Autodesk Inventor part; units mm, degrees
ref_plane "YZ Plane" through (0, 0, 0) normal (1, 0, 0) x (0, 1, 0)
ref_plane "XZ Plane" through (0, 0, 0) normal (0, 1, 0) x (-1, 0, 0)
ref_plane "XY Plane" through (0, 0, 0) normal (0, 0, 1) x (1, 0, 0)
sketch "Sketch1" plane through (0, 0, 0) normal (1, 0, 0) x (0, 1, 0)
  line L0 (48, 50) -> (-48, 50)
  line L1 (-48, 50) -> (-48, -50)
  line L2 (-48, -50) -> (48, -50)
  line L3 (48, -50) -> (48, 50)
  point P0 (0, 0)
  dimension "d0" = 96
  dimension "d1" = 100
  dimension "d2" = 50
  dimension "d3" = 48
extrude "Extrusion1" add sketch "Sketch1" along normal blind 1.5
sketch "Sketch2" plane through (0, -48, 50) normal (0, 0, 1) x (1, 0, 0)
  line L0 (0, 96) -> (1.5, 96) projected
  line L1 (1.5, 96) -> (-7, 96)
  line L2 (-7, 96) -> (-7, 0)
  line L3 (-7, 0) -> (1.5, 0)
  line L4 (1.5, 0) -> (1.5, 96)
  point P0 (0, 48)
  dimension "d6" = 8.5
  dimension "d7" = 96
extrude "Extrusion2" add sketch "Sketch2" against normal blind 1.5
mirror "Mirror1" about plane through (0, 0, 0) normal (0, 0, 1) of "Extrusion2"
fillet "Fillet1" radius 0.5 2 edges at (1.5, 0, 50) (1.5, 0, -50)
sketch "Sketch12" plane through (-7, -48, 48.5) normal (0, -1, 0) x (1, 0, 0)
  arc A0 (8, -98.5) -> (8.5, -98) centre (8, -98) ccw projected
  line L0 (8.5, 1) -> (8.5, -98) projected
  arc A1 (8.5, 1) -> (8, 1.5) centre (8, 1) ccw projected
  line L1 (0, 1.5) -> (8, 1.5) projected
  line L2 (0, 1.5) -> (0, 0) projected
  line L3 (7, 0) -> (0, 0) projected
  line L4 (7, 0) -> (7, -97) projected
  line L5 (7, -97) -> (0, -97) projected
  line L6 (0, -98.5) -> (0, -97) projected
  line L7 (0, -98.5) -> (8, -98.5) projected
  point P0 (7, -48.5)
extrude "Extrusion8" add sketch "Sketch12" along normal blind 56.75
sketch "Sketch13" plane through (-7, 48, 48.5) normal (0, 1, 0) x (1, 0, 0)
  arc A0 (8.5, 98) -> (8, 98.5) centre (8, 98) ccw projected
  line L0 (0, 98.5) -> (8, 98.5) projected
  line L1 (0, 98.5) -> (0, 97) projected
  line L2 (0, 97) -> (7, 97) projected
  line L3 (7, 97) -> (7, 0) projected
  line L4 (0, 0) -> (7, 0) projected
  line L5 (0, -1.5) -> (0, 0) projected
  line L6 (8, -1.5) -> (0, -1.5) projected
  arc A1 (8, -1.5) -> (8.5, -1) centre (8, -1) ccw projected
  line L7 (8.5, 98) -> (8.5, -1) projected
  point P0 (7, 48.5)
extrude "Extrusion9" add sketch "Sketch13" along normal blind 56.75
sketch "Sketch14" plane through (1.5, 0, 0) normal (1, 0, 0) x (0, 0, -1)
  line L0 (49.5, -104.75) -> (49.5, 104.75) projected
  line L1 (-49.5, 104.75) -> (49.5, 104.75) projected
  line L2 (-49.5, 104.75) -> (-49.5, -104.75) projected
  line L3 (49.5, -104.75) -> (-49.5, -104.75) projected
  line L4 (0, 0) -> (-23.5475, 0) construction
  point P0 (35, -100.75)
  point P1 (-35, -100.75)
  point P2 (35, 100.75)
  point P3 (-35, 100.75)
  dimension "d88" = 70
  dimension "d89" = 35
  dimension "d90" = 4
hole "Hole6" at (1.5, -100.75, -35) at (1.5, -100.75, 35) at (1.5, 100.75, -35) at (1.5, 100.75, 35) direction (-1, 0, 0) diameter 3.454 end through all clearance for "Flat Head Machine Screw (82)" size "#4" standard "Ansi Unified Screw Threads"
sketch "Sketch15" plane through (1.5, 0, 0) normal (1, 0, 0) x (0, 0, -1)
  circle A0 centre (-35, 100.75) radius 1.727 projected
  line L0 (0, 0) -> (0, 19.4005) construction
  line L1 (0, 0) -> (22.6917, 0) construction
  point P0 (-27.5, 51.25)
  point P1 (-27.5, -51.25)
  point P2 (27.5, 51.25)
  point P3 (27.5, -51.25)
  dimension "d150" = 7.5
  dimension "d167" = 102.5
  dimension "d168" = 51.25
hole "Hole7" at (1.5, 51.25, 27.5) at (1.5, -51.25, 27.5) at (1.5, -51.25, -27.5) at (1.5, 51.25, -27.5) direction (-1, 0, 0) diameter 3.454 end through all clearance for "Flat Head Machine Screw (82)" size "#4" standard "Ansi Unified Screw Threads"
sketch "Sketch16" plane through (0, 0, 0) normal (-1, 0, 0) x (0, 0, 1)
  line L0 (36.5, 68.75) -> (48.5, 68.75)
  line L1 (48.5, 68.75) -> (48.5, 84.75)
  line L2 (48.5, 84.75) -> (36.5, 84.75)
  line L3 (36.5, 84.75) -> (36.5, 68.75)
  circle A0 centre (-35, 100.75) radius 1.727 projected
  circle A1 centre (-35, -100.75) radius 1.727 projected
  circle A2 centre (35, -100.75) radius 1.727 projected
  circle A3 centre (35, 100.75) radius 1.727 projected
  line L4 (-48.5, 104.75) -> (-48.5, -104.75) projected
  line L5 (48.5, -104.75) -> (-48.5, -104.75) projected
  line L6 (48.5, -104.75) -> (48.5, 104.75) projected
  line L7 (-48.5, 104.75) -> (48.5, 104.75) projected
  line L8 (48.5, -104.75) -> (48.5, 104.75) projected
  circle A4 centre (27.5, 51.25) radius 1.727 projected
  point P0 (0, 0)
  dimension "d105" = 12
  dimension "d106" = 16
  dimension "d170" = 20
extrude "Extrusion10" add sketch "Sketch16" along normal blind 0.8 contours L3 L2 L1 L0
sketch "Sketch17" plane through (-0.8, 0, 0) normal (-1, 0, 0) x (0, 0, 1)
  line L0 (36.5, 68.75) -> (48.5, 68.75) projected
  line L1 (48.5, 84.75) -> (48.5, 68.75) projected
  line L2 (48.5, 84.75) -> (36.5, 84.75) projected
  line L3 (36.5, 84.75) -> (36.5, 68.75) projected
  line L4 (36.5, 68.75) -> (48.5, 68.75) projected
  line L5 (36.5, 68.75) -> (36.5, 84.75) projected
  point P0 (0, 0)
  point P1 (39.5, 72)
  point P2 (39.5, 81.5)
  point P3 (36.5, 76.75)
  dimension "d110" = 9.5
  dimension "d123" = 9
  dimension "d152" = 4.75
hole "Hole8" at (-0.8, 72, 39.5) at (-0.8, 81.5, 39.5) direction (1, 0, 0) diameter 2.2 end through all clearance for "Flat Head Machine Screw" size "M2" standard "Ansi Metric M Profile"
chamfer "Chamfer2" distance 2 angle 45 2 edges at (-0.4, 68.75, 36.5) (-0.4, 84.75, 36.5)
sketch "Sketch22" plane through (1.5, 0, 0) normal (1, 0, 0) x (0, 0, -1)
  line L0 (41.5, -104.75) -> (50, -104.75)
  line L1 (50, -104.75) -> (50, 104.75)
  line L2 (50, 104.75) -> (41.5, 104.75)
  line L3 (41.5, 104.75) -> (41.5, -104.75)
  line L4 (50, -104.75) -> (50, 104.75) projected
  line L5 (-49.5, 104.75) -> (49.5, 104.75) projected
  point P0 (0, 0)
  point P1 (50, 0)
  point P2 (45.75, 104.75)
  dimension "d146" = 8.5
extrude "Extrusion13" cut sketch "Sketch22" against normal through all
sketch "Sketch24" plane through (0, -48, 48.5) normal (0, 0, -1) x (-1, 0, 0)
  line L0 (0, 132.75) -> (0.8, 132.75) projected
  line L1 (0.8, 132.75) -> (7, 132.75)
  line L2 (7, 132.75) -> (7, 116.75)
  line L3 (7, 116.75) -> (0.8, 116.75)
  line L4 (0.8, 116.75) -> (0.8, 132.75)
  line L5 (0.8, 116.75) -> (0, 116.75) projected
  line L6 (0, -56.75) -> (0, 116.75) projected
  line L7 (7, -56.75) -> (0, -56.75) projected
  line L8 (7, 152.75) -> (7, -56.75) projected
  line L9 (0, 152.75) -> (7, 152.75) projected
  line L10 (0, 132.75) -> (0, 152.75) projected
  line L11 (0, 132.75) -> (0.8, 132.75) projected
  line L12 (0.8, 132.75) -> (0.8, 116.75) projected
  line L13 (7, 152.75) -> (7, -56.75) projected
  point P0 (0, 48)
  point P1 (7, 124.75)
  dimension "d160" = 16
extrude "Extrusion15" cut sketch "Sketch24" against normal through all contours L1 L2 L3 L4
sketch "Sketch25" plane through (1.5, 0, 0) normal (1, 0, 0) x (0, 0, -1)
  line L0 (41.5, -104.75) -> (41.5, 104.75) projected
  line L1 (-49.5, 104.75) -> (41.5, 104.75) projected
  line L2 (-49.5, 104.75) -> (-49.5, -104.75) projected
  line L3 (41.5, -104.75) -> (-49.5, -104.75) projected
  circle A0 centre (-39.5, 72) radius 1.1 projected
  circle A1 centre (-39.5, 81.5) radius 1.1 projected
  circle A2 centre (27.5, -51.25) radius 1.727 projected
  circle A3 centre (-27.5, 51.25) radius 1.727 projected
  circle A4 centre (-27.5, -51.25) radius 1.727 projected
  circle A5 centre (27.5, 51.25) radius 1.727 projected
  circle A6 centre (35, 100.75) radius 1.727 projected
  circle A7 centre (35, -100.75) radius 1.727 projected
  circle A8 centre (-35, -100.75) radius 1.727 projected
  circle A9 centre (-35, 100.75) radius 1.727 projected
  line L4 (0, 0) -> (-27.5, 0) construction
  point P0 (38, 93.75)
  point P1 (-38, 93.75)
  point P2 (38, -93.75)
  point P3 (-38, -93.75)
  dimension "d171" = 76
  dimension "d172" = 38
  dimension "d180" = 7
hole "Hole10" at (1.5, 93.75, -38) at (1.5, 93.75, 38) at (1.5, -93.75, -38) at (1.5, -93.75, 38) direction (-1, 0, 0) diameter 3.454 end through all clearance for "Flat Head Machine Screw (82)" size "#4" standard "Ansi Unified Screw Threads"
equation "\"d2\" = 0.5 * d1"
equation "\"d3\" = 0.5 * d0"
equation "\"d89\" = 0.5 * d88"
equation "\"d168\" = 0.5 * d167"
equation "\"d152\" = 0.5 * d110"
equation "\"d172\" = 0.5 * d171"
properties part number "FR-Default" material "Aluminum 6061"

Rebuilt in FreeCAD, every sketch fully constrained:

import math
import FreeCAD as App
import Part
import Sketcher
from FreeCAD import Vector
Q = App.Units.Quantity


def edges_at(feature, points):
    """Names of the edges that pass closest to the given points."""
    edges = feature.Shape.Edges
    near = lambda p: min(range(len(edges)), key=lambda i: edges[i].distToShape(Part.Vertex(*p))[0])
    return sorted({f"Edge{near(p) + 1}" for p in points})

doc = App.newDocument("Part")
body = doc.addObject("PartDesign::Body", "Body")

# Sketch on YZ plane
sketch1 = body.newObject("Sketcher::SketchObject", "Sketch")
sketch1.AttachmentSupport = (doc.getObject("YZ_Plane"), [""])
sketch1.MapMode = "FlatFace"
sketch1.addGeometry([
    Part.LineSegment(Vector(48, -50, 0), Vector(48, 50, 0)),
    Part.LineSegment(Vector(48, 50, 0), Vector(-48, 50, 0)),
    Part.LineSegment(Vector(-48, 50, 0), Vector(-48, -50, 0)),
    Part.LineSegment(Vector(-48, -50, 0), Vector(48, -50, 0)),
], False)
sketch1.addConstraint([
    Sketcher.Constraint("Coincident", 0, 2, 1, 1),
    Sketcher.Constraint("Coincident", 1, 2, 2, 1),
    Sketcher.Constraint("Coincident", 2, 2, 3, 1),
    Sketcher.Constraint("Coincident", 3, 2, 0, 1),
    Sketcher.Constraint("Vertical", 0),
    Sketcher.Constraint("Horizontal", 1),
    Sketcher.Constraint("Vertical", 2),
    Sketcher.Constraint("Horizontal", 3),
    Sketcher.Constraint("Symmetric", 0, 2, 2, 2, -1, 1),
    Sketcher.Constraint("DistanceX", 1, 2, 1, 1, Q("96 mm")),
    Sketcher.Constraint("DistanceY", 0, 1, 0, 2, Q("100 mm")),
])
pad1 = body.newObject("PartDesign::Pad", "Pad")
pad1.Profile = sketch1
pad1.Length = 1.5

# Sketch on XY plane
sketch2 = body.newObject("Sketcher::SketchObject", "Sketch001")
sketch2.AttachmentSupport = (doc.getObject("XY_Plane"), [""])
sketch2.MapMode = "FlatFace"
sketch2.AttachmentOffset = App.Placement(Vector(0, 0, 50), App.Rotation())
sketch2.addGeometry([
    Part.LineSegment(Vector(1.5, 48, 0), Vector(-7, 48, 0)),
    Part.LineSegment(Vector(-7, 48, 0), Vector(-7, -48, 0)),
    Part.LineSegment(Vector(-7, -48, 0), Vector(1.5, -48, 0)),
    Part.LineSegment(Vector(1.5, -48, 0), Vector(1.5, 48, 0)),
], False)
sketch2.addConstraint([
    Sketcher.Constraint("Coincident", 0, 2, 1, 1),
    Sketcher.Constraint("Coincident", 1, 2, 2, 1),
    Sketcher.Constraint("Coincident", 2, 2, 3, 1),
    Sketcher.Constraint("Coincident", 3, 2, 0, 1),
    Sketcher.Constraint("Horizontal", 0),
    Sketcher.Constraint("Vertical", 1),
    Sketcher.Constraint("Horizontal", 2),
    Sketcher.Constraint("Vertical", 3),
    Sketcher.Constraint("DistanceY", 1, 2, 1, 1, Q("96 mm")),
    Sketcher.Constraint("DistanceX", 0, 2, 0, 1, Q("8.5 mm")),
    Sketcher.Constraint("DistanceX", 0, 2, -1, 1, Q("7 mm")),
    Sketcher.Constraint("DistanceY", -1, 1, 0, 2, Q("48 mm")),
])
pad2 = body.newObject("PartDesign::Pad", "Pad001")
pad2.Profile = sketch2
pad2.Length = 1.5
pad2.Reversed = True
doc.recompute()

mirrored = body.newObject("PartDesign::Mirrored", "Mirrored")
mirrored.Originals = [pad2]
mirrored.MirrorPlane = (doc.getObject("XY_Plane"), [""])
body.Tip = mirrored
doc.recompute()

fillet = body.newObject("PartDesign::Fillet", "Fillet")
fillet.Base = (mirrored, edges_at(mirrored, [(1.5, 0, 50), (1.5, 0, -50)]))
fillet.Radius = 0.5

# Sketch on XZ plane
sketch3 = body.newObject("Sketcher::SketchObject", "Sketch002")
sketch3.AttachmentSupport = (doc.getObject("XZ_Plane"), [""])
sketch3.MapMode = "FlatFace"
sketch3.AttachmentOffset = App.Placement(Vector(0, 0, 48), App.Rotation())
sketch3.addGeometry([
    Part.LineSegment(Vector(-7, -50, 0), Vector(1, -50, 0)),  # 0
    Part.ArcOfCircle(Part.Circle(Vector(1, -49.5, 0), Vector(0, 0, 1), 0.5), math.radians(-90), math.radians(0)),  # 1
    Part.LineSegment(Vector(1.5, -49.5, 0), Vector(1.5, 49.5, 0)),  # 2
    Part.ArcOfCircle(Part.Circle(Vector(1, 49.5, 0), Vector(0, 0, 1), 0.5), math.radians(0), math.radians(90)),  # 3
    Part.LineSegment(Vector(1, 50, 0), Vector(-7, 50, 0)),  # 4
    Part.LineSegment(Vector(-7, 50, 0), Vector(-7, 48.5, 0)),  # 5
    Part.LineSegment(Vector(-7, 48.5, 0), Vector(0, 48.5, 0)),  # 6
    Part.LineSegment(Vector(0, 48.5, 0), Vector(0, -48.5, 0)),  # 7
    Part.LineSegment(Vector(0, -48.5, 0), Vector(-7, -48.5, 0)),  # 8
    Part.LineSegment(Vector(-7, -48.5, 0), Vector(-7, -50, 0)),  # 9
], False)
sketch3.addConstraint([
    Sketcher.Constraint("Tangent", 0, 2, 1, 1),
    Sketcher.Constraint("Tangent", 1, 2, 2, 1),
    Sketcher.Constraint("Tangent", 2, 2, 3, 1),
    Sketcher.Constraint("Tangent", 3, 2, 4, 1),
    Sketcher.Constraint("Coincident", 4, 2, 5, 1),
    Sketcher.Constraint("Coincident", 5, 2, 6, 1),
    Sketcher.Constraint("Coincident", 6, 2, 7, 1),
    Sketcher.Constraint("Coincident", 7, 2, 8, 1),
    Sketcher.Constraint("Coincident", 8, 2, 9, 1),
    Sketcher.Constraint("Coincident", 9, 2, 0, 1),
    Sketcher.Constraint("Horizontal", 0),
    Sketcher.Constraint("Vertical", 2),
    Sketcher.Constraint("Horizontal", 4),
    Sketcher.Constraint("Vertical", 5),
    Sketcher.Constraint("Horizontal", 6),
    Sketcher.Constraint("Vertical", 7),
    Sketcher.Constraint("Horizontal", 8),
    Sketcher.Constraint("Vertical", 9),
    Sketcher.Constraint("Equal", 1, 3),
    Sketcher.Constraint("Symmetric", 6, 2, 7, 2, -1, 1),
    Sketcher.Constraint("Symmetric", 4, 2, 9, 2, -1),
    Sketcher.Constraint("Radius", 1, Q("0.5 mm")),
    Sketcher.Constraint("DistanceX", 0, 1, 0, 2, Q("8 mm")),
    Sketcher.Constraint("DistanceX", 6, 1, 6, 2, Q("7 mm")),
    Sketcher.Constraint("DistanceY", 2, 1, 2, 2, Q("99 mm")),
    Sketcher.Constraint("DistanceY", 7, 2, 7, 1, Q("97 mm")),
])
pad3 = body.newObject("PartDesign::Pad", "Pad002")
pad3.Profile = sketch3
pad3.Length = 56.75

# Sketch on XZ plane
sketch4 = body.newObject("Sketcher::SketchObject", "Sketch003")
sketch4.AttachmentSupport = (doc.getObject("XZ_Plane"), [""])
sketch4.MapMode = "FlatFace"
sketch4.AttachmentOffset = App.Placement(Vector(0, 0, -48), App.Rotation())
sketch4.addGeometry([
    Part.LineSegment(Vector(1.5, 49.5, 0), Vector(1.5, -49.5, 0)),  # 0
    Part.ArcOfCircle(Part.Circle(Vector(1, -49.5, 0), Vector(0, 0, 1), 0.5), math.radians(-90), math.radians(0)),  # 1
    Part.LineSegment(Vector(1, -50, 0), Vector(-7, -50, 0)),  # 2
    Part.LineSegment(Vector(-7, -50, 0), Vector(-7, -48.5, 0)),  # 3
    Part.LineSegment(Vector(-7, -48.5, 0), Vector(0, -48.5, 0)),  # 4
    Part.LineSegment(Vector(0, -48.5, 0), Vector(0, 48.5, 0)),  # 5
    Part.LineSegment(Vector(0, 48.5, 0), Vector(-7, 48.5, 0)),  # 6
    Part.LineSegment(Vector(-7, 48.5, 0), Vector(-7, 50, 0)),  # 7
    Part.LineSegment(Vector(-7, 50, 0), Vector(1, 50, 0)),  # 8
    Part.ArcOfCircle(Part.Circle(Vector(1, 49.5, 0), Vector(0, 0, 1), 0.5), math.radians(0), math.radians(90)),  # 9
], False)
sketch4.addConstraint([
    Sketcher.Constraint("Tangent", 0, 2, 1, 2),
    Sketcher.Constraint("Tangent", 1, 1, 2, 1),
    Sketcher.Constraint("Coincident", 2, 2, 3, 1),
    Sketcher.Constraint("Coincident", 3, 2, 4, 1),
    Sketcher.Constraint("Coincident", 4, 2, 5, 1),
    Sketcher.Constraint("Coincident", 5, 2, 6, 1),
    Sketcher.Constraint("Coincident", 6, 2, 7, 1),
    Sketcher.Constraint("Coincident", 7, 2, 8, 1),
    Sketcher.Constraint("Tangent", 8, 2, 9, 2),
    Sketcher.Constraint("Tangent", 9, 1, 0, 1),
    Sketcher.Constraint("Vertical", 0),
    Sketcher.Constraint("Horizontal", 2),
    Sketcher.Constraint("Vertical", 3),
    Sketcher.Constraint("Horizontal", 4),
    Sketcher.Constraint("Vertical", 5),
    Sketcher.Constraint("Horizontal", 6),
    Sketcher.Constraint("Vertical", 7),
    Sketcher.Constraint("Horizontal", 8),
    Sketcher.Constraint("Equal", 1, 9),
    Sketcher.Constraint("Symmetric", 4, 2, 5, 2, -1, 1),
    Sketcher.Constraint("Symmetric", 2, 2, 7, 2, -1),
    Sketcher.Constraint("Radius", 1, Q("0.5 mm")),
    Sketcher.Constraint("DistanceX", 2, 2, 2, 1, Q("8 mm")),
    Sketcher.Constraint("DistanceX", 4, 1, 4, 2, Q("7 mm")),
    Sketcher.Constraint("DistanceY", 0, 2, 0, 1, Q("99 mm")),
    Sketcher.Constraint("DistanceY", 5, 1, 5, 2, Q("97 mm")),
])
pad4 = body.newObject("PartDesign::Pad", "Pad003")
pad4.Profile = sketch4
pad4.Length = 56.75
pad4.Reversed = True

# Sketch on YZ plane
sketch5 = body.newObject("Sketcher::SketchObject", "Sketch004")
sketch5.AttachmentSupport = (doc.getObject("YZ_Plane"), [""])
sketch5.MapMode = "FlatFace"
sketch5.AttachmentOffset = App.Placement(Vector(0, 0, 1.5), App.Rotation())
sketch5.addGeometry([
    Part.Circle(Vector(-100.75, -35, 0), Vector(0, 0, 1), 1.727),
    Part.Circle(Vector(-100.75, 35, 0), Vector(0, 0, 1), 1.727),
    Part.Circle(Vector(100.75, -35, 0), Vector(0, 0, 1), 1.727),
    Part.Circle(Vector(100.75, 35, 0), Vector(0, 0, 1), 1.727),
], False)
sketch5.addConstraint([
    Sketcher.Constraint("Equal", 0, 1),
    Sketcher.Constraint("Equal", 1, 2),
    Sketcher.Constraint("Equal", 2, 3),
    Sketcher.Constraint("Symmetric", 1, 3, 2, 3, -1, 1),
    Sketcher.Constraint("Symmetric", 0, 3, 3, 3, -1, 1),
    Sketcher.Constraint("Symmetric", 0, 3, 2, 3, -2),
    Sketcher.Constraint("Diameter", 0, Q("3.454 mm")),
    Sketcher.Constraint("DistanceY", 0, 3, -1, 1, Q("35 mm")),
    Sketcher.Constraint("DistanceX", 0, 3, 2, 3, Q("201.5 mm")),
])
doc.recompute()
hole = body.newObject("PartDesign::Hole", "Hole")
hole.Profile = sketch5
hole.ThreadType = "None"
hole.Diameter = 3.454
hole.DepthType = "ThroughAll"

# Sketch on YZ plane
sketch6 = body.newObject("Sketcher::SketchObject", "Sketch005")
sketch6.AttachmentSupport = (doc.getObject("YZ_Plane"), [""])
sketch6.MapMode = "FlatFace"
sketch6.AttachmentOffset = App.Placement(Vector(0, 0, 1.5), App.Rotation())
sketch6.addGeometry([
    Part.Circle(Vector(51.25, 27.5, 0), Vector(0, 0, 1), 1.727),
    Part.Circle(Vector(-51.25, 27.5, 0), Vector(0, 0, 1), 1.727),
    Part.Circle(Vector(-51.25, -27.5, 0), Vector(0, 0, 1), 1.727),
    Part.Circle(Vector(51.25, -27.5, 0), Vector(0, 0, 1), 1.727),
], False)
sketch6.addConstraint([
    Sketcher.Constraint("Equal", 0, 1),
    Sketcher.Constraint("Equal", 1, 2),
    Sketcher.Constraint("Equal", 2, 3),
    Sketcher.Constraint("Symmetric", 0, 3, 2, 3, -1, 1),
    Sketcher.Constraint("Symmetric", 1, 3, 3, 3, -1, 1),
    Sketcher.Constraint("Symmetric", 0, 3, 1, 3, -2),
    Sketcher.Constraint("Diameter", 0, Q("3.454 mm")),
    Sketcher.Constraint("DistanceY", 2, 3, 1, 3, Q("55 mm")),
    Sketcher.Constraint("DistanceX", 1, 3, 0, 3, Q("102.5 mm")),
])
doc.recompute()
hole2 = body.newObject("PartDesign::Hole", "Hole001")
hole2.Profile = sketch6
hole2.ThreadType = "None"
hole2.Diameter = 3.454
hole2.DepthType = "ThroughAll"

# Sketch on YZ plane
sketch7 = body.newObject("Sketcher::SketchObject", "Sketch006")
sketch7.AttachmentSupport = (doc.getObject("YZ_Plane"), [""])
sketch7.MapMode = "FlatFace"
sketch7.addGeometry([
    Part.LineSegment(Vector(84.75, 36.5, 0), Vector(68.75, 36.5, 0)),
    Part.LineSegment(Vector(68.75, 36.5, 0), Vector(68.75, 48.5, 0)),
    Part.LineSegment(Vector(68.75, 48.5, 0), Vector(84.75, 48.5, 0)),
    Part.LineSegment(Vector(84.75, 48.5, 0), Vector(84.75, 36.5, 0)),
], False)
sketch7.addConstraint([
    Sketcher.Constraint("Coincident", 0, 2, 1, 1),
    Sketcher.Constraint("Coincident", 1, 2, 2, 1),
    Sketcher.Constraint("Coincident", 2, 2, 3, 1),
    Sketcher.Constraint("Coincident", 3, 2, 0, 1),
    Sketcher.Constraint("Horizontal", 0),
    Sketcher.Constraint("Vertical", 1),
    Sketcher.Constraint("Horizontal", 2),
    Sketcher.Constraint("Vertical", 3),
    Sketcher.Constraint("DistanceX", 0, 2, 0, 1, Q("16 mm")),
    Sketcher.Constraint("DistanceY", 1, 1, 1, 2, Q("12 mm")),
    Sketcher.Constraint("DistanceY", -1, 1, 0, 2, Q("36.5 mm")),
    Sketcher.Constraint("DistanceX", -1, 1, 0, 2, Q("68.75 mm")),
])
pad5 = body.newObject("PartDesign::Pad", "Pad004")
pad5.Profile = sketch7
pad5.Length = 0.8
pad5.Reversed = True

# Sketch on YZ plane
sketch8 = body.newObject("Sketcher::SketchObject", "Sketch007")
sketch8.AttachmentSupport = (doc.getObject("YZ_Plane"), [""])
sketch8.MapMode = "FlatFace"
sketch8.AttachmentOffset = App.Placement(Vector(0, 0, -0.8), App.Rotation())
sketch8.addGeometry([
    Part.Circle(Vector(72, 39.5, 0), Vector(0, 0, 1), 1.1),
    Part.Circle(Vector(81.5, 39.5, 0), Vector(0, 0, 1), 1.1),
], False)
sketch8.addConstraint([
    Sketcher.Constraint("Equal", 0, 1),
    Sketcher.Constraint("Horizontal", 0, 3, 1, 3),
    Sketcher.Constraint("Diameter", 0, Q("2.2 mm")),
    Sketcher.Constraint("DistanceX", -1, 1, 0, 3, Q("72 mm")),
    Sketcher.Constraint("DistanceY", -1, 1, 0, 3, Q("39.5 mm")),
    Sketcher.Constraint("DistanceX", -1, 1, 1, 3, Q("81.5 mm")),
])
doc.recompute()
hole3 = body.newObject("PartDesign::Hole", "Hole002")
hole3.Profile = sketch8
hole3.ThreadType = "None"
hole3.Diameter = 2.2
hole3.DepthType = "ThroughAll"
hole3.Reversed = True
doc.recompute()

chamfer = body.newObject("PartDesign::Chamfer", "Chamfer")
chamfer.Base = (hole3, edges_at(hole3, [(-0.4, 68.75, 36.5), (-0.4, 84.75, 36.5)]))
chamfer.Size = 2

# Sketch on YZ plane
sketch9 = body.newObject("Sketcher::SketchObject", "Sketch008")
sketch9.AttachmentSupport = (doc.getObject("YZ_Plane"), [""])
sketch9.MapMode = "FlatFace"
sketch9.AttachmentOffset = App.Placement(Vector(0, 0, 1.5), App.Rotation())
sketch9.addGeometry([
    Part.LineSegment(Vector(104.75, -41.5, 0), Vector(-104.75, -41.5, 0)),
    Part.LineSegment(Vector(-104.75, -41.5, 0), Vector(-104.75, -50, 0)),
    Part.LineSegment(Vector(-104.75, -50, 0), Vector(104.75, -50, 0)),
    Part.LineSegment(Vector(104.75, -50, 0), Vector(104.75, -41.5, 0)),
], False)
sketch9.addConstraint([
    Sketcher.Constraint("Coincident", 0, 2, 1, 1),
    Sketcher.Constraint("Coincident", 1, 2, 2, 1),
    Sketcher.Constraint("Coincident", 2, 2, 3, 1),
    Sketcher.Constraint("Coincident", 3, 2, 0, 1),
    Sketcher.Constraint("Horizontal", 0),
    Sketcher.Constraint("Vertical", 1),
    Sketcher.Constraint("Horizontal", 2),
    Sketcher.Constraint("Vertical", 3),
    Sketcher.Constraint("DistanceY", 1, 2, 1, 1, Q("8.5 mm")),
    Sketcher.Constraint("DistanceX", 0, 2, 0, 1, Q("209.5 mm")),
    Sketcher.Constraint("DistanceY", 1, 2, -1, 1, Q("50 mm")),
    Sketcher.Constraint("DistanceX", 0, 2, -1, 1, Q("104.75 mm")),
])
pocket1 = body.newObject("PartDesign::Pocket", "Pocket")
pocket1.Profile = sketch9
pocket1.Type = "ThroughAll"

# Sketch on XY plane
sketch10 = body.newObject("Sketcher::SketchObject", "Sketch009")
sketch10.AttachmentSupport = (doc.getObject("XY_Plane"), [""])
sketch10.MapMode = "FlatFace"
sketch10.AttachmentOffset = App.Placement(Vector(0, 0, 48.5), App.Rotation())
sketch10.addGeometry([
    Part.LineSegment(Vector(-7, 84.75, 0), Vector(-0.8, 84.75, 0)),
    Part.LineSegment(Vector(-0.8, 84.75, 0), Vector(-0.8, 68.75, 0)),
    Part.LineSegment(Vector(-0.8, 68.75, 0), Vector(-7, 68.75, 0)),
    Part.LineSegment(Vector(-7, 68.75, 0), Vector(-7, 84.75, 0)),
], False)
sketch10.addConstraint([
    Sketcher.Constraint("Coincident", 0, 2, 1, 1),
    Sketcher.Constraint("Coincident", 1, 2, 2, 1),
    Sketcher.Constraint("Coincident", 2, 2, 3, 1),
    Sketcher.Constraint("Coincident", 3, 2, 0, 1),
    Sketcher.Constraint("Horizontal", 0),
    Sketcher.Constraint("Vertical", 1),
    Sketcher.Constraint("Horizontal", 2),
    Sketcher.Constraint("Vertical", 3),
    Sketcher.Constraint("DistanceY", 1, 2, 1, 1, Q("16 mm")),
    Sketcher.Constraint("DistanceX", 0, 1, 0, 2, Q("6.2 mm")),
    Sketcher.Constraint("DistanceX", 2, 2, -1, 1, Q("7 mm")),
    Sketcher.Constraint("DistanceY", -1, 1, 0, 2, Q("84.75 mm")),
])
pocket2 = body.newObject("PartDesign::Pocket", "Pocket001")
pocket2.Profile = sketch10
pocket2.Type = "ThroughAll"
pocket2.Reversed = True

# Sketch on YZ plane
sketch11 = body.newObject("Sketcher::SketchObject", "Sketch010")
sketch11.AttachmentSupport = (doc.getObject("YZ_Plane"), [""])
sketch11.MapMode = "FlatFace"
sketch11.AttachmentOffset = App.Placement(Vector(0, 0, 1.5), App.Rotation())
sketch11.addGeometry([
    Part.Circle(Vector(93.75, -38, 0), Vector(0, 0, 1), 1.727),
    Part.Circle(Vector(93.75, 38, 0), Vector(0, 0, 1), 1.727),
    Part.Circle(Vector(-93.75, -38, 0), Vector(0, 0, 1), 1.727),
    Part.Circle(Vector(-93.75, 38, 0), Vector(0, 0, 1), 1.727),
], False)
sketch11.addConstraint([
    Sketcher.Constraint("Equal", 0, 1),
    Sketcher.Constraint("Equal", 1, 2),
    Sketcher.Constraint("Equal", 2, 3),
    Sketcher.Constraint("Symmetric", 1, 3, 2, 3, -1, 1),
    Sketcher.Constraint("Symmetric", 0, 3, 3, 3, -1, 1),
    Sketcher.Constraint("Symmetric", 0, 3, 2, 3, -2),
    Sketcher.Constraint("Diameter", 0, Q("3.454 mm")),
    Sketcher.Constraint("DistanceY", 0, 3, -1, 1, Q("38 mm")),
    Sketcher.Constraint("DistanceX", 2, 3, 0, 3, Q("187.5 mm")),
])
doc.recompute()
hole4 = body.newObject("PartDesign::Hole", "Hole003")
hole4.Profile = sketch11
hole4.ThreadType = "None"
hole4.Diameter = 3.454
hole4.DepthType = "ThroughAll"

doc.recompute()
